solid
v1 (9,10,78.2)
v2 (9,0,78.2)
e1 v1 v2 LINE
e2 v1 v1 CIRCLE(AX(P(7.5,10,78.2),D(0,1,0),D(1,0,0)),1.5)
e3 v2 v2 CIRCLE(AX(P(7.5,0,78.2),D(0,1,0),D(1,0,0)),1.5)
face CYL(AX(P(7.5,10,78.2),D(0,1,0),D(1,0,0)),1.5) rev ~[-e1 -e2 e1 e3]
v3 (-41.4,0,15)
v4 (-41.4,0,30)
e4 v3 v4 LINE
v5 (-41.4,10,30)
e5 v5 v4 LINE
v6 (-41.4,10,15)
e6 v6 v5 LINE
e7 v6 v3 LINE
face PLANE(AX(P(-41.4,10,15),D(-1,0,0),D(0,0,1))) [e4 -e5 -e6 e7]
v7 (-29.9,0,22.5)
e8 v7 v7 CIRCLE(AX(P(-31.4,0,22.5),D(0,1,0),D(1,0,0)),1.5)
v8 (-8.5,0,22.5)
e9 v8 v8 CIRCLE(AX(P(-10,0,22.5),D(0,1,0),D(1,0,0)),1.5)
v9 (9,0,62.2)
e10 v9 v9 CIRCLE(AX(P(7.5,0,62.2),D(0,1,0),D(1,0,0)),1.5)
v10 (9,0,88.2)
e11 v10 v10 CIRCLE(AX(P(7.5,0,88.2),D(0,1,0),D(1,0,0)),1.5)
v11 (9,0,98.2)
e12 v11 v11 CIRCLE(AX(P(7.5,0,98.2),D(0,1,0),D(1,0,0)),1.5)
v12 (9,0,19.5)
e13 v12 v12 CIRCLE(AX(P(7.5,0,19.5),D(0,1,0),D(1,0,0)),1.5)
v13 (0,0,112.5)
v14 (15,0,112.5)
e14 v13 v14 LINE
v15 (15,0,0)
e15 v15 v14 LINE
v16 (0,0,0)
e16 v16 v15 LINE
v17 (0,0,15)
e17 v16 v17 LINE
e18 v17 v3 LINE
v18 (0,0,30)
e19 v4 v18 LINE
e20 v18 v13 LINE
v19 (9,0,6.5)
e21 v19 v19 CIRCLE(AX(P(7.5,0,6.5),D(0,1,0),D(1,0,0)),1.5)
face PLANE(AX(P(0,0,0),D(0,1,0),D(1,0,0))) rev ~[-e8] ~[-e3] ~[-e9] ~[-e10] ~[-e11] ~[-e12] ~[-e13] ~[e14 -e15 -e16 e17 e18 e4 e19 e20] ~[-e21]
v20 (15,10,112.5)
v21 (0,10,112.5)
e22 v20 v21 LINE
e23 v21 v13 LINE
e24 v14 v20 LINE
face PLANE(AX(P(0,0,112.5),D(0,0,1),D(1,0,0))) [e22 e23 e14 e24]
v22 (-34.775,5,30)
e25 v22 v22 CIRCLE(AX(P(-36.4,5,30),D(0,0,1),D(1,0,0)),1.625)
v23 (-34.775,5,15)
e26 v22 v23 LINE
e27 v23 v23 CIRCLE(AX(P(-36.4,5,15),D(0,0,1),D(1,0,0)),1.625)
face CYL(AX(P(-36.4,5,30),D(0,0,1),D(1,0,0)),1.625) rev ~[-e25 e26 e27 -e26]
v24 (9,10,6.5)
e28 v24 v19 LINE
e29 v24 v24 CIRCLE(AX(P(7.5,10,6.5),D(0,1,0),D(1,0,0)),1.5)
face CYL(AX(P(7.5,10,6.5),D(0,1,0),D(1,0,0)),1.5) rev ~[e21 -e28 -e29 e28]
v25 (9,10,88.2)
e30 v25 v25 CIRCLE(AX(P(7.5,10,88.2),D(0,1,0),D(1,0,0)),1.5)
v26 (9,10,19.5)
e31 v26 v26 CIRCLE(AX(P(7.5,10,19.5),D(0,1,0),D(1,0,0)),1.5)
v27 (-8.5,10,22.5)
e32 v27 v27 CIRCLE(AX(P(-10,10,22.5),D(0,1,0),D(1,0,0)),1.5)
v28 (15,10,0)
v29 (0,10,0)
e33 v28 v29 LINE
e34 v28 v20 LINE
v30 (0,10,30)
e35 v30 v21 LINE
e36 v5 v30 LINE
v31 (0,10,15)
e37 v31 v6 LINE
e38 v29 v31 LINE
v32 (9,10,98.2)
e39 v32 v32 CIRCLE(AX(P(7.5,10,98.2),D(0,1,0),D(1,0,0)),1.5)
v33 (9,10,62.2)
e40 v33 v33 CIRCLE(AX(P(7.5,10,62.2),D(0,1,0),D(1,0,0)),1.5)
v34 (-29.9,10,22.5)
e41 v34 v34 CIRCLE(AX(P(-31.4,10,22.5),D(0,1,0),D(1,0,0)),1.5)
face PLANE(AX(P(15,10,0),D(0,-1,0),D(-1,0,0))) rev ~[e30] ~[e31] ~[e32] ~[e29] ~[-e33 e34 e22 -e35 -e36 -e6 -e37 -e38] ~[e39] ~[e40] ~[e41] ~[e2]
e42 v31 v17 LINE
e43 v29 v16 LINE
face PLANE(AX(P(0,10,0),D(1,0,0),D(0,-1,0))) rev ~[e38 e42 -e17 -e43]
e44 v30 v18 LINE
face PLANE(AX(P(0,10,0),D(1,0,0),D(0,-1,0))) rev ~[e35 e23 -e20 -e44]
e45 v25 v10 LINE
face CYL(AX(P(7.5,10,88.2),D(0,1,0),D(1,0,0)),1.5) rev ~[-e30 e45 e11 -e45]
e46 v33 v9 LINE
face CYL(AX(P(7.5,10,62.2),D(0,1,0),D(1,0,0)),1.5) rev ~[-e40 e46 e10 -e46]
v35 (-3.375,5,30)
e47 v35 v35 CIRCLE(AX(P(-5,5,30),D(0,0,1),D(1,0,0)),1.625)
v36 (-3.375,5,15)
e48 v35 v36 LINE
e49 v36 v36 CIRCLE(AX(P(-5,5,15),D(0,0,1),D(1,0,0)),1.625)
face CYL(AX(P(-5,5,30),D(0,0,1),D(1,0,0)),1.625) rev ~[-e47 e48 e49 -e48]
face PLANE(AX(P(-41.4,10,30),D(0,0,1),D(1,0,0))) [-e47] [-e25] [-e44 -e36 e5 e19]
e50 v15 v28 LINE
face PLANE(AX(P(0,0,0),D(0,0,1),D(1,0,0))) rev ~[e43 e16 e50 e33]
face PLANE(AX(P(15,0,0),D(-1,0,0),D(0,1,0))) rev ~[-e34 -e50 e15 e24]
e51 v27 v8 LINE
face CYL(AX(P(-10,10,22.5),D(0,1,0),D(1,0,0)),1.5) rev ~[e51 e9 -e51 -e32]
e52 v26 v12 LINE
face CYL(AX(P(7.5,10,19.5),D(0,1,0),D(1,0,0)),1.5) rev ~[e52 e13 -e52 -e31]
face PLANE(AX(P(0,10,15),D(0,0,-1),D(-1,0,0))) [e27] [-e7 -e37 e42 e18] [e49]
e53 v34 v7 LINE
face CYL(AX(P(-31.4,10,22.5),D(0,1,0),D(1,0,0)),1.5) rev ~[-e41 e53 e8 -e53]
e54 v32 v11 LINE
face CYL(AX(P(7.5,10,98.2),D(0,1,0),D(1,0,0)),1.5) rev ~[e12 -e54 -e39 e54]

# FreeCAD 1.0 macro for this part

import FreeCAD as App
import Part
import Sketcher

V = App.Vector
Q = App.Units.Quantity


def add_polygon(sketch, points):
    """Adds a closed chain of lines whose ends are joined by coincident constraints."""
    first, n = sketch.GeometryCount, len(points)
    for a, b in zip(points, points[1:] + points[:1]):
        sketch.addGeometry(Part.LineSegment(App.Vector(*a, 0), App.Vector(*b, 0)), False)
    for i in range(n):
        sketch.addConstraint(Sketcher.Constraint("Coincident", first + i, 2, first + (i + 1) % n, 1))

doc = App.newDocument("Part")
body = doc.addObject("PartDesign::Body", "Body")

sketch1 = body.newObject("Sketcher::SketchObject", "Sketch")
sketch1.AttachmentSupport = (doc.getObject("XY_Plane"), [""])
sketch1.MapMode = "FlatFace"
add_polygon(sketch1, [(0, 10), (0, 0), (15, 0), (15, 10)])
sketch1.addConstraint([
    Sketcher.Constraint("Vertical", 0),
    Sketcher.Constraint("Horizontal", 1),
    Sketcher.Constraint("Vertical", 2),
    Sketcher.Constraint("Horizontal", 3),
    Sketcher.Constraint("Coincident", 0, 2, -1, 1),
    Sketcher.Constraint("DistanceX", 1, 1, 1, 2, Q("15 mm")),
    Sketcher.Constraint("DistanceY", 0, 2, 0, 1, Q("10 mm")),
])
pad1 = body.newObject("PartDesign::Pad", "Pad")
pad1.Profile = sketch1
pad1.Length = 112.5

sketch2 = body.newObject("Sketcher::SketchObject", "Sketch001")
sketch2.AttachmentSupport = (doc.getObject("XZ_Plane"), [""])
sketch2.MapMode = "FlatFace"
sketch2.AttachmentOffset = App.Placement(V(0, 0, -10), App.Rotation())
sketch2.addGeometry([
    Part.Circle(V(7.5, 6.5, 0), V(0, 0, 1), 1.5),
    Part.Circle(V(7.5, 98.2, 0), V(0, 0, 1), 1.5),
    Part.Circle(V(7.5, 19.5, 0), V(0, 0, 1), 1.5),
    Part.Circle(V(7.5, 88.2, 0), V(0, 0, 1), 1.5),
    Part.Circle(V(7.5, 78.2, 0), V(0, 0, 1), 1.5),
    Part.Circle(V(7.5, 62.2, 0), V(0, 0, 1), 1.5),
], False)
sketch2.addConstraint([
    Sketcher.Constraint("Equal", 0, 1),
    Sketcher.Constraint("Equal", 1, 2),
    Sketcher.Constraint("Equal", 2, 3),
    Sketcher.Constraint("Equal", 3, 4),
    Sketcher.Constraint("Equal", 4, 5),
    Sketcher.Constraint("Vertical", 0, 3, 1, 3),
    Sketcher.Constraint("Vertical", 1, 3, 2, 3),
    Sketcher.Constraint("Vertical", 2, 3, 3, 3),
    Sketcher.Constraint("Vertical", 3, 3, 4, 3),
    Sketcher.Constraint("Vertical", 4, 3, 5, 3),
    Sketcher.Constraint("Diameter", 0, Q("3 mm")),
    Sketcher.Constraint("DistanceY", 0, 3, 2, 3, Q("13 mm")),
    Sketcher.Constraint("DistanceY", 3, 3, 1, 3, Q("10 mm")),
    Sketcher.Constraint("DistanceY", 4, 3, 3, 3, Q("10 mm")),
    Sketcher.Constraint("DistanceY", 5, 3, 4, 3, Q("16 mm")),
    Sketcher.Constraint("DistanceX", -1, 1, 0, 3, Q("7.5 mm")),
    Sketcher.Constraint("DistanceY", -1, 1, 0, 3, Q("6.5 mm")),
    Sketcher.Constraint("DistanceY", -1, 1, 1, 3, Q("98.2 mm")),
])
pocket1 = body.newObject("PartDesign::Pocket", "Pocket")
pocket1.Profile = sketch2
pocket1.Length = 10
pocket1.Reversed = True

sketch3 = body.newObject("Sketcher::SketchObject", "Sketch002")
sketch3.AttachmentSupport = (doc.getObject("XZ_Plane"), [""])
sketch3.MapMode = "FlatFace"
sketch3.AttachmentOffset = App.Placement(V(0, 0, -10), App.Rotation())
add_polygon(sketch3, [(0, 30), (0, 15), (-41.4, 15), (-41.4, 30)])
sketch3.addGeometry(Part.Circle(V(-31.4, 22.5, 0), V(0, 0, 1), 1.5), False)
sketch3.addGeometry(Part.Circle(V(-10, 22.5, 0), V(0, 0, 1), 1.5), False)
sketch3.addConstraint([
    Sketcher.Constraint("Vertical", 0),
    Sketcher.Constraint("Horizontal", 1),
    Sketcher.Constraint("Vertical", 2),
    Sketcher.Constraint("Horizontal", 3),
    Sketcher.Constraint("Equal", 4, 5),
    Sketcher.Constraint("PointOnObject", 0, 2, -2),
    Sketcher.Constraint("Horizontal", 4, 3, 5, 3),
    Sketcher.Constraint("Diameter", 4, Q("3 mm")),
    Sketcher.Constraint("DistanceY", 0, 2, 0, 1, Q("15 mm")),
    Sketcher.Constraint("DistanceX", 1, 2, 1, 1, Q("41.4 mm")),
    Sketcher.Constraint("DistanceX", 5, 3, -1, 1, Q("10 mm")),
    Sketcher.Constraint("DistanceY", -1, 1, 0, 2, Q("15 mm")),
    Sketcher.Constraint("DistanceX", 1, 2, 4, 3, Q("10 mm")),
    Sketcher.Constraint("DistanceY", 0, 2, 5, 3, Q("7.5 mm")),
])
pad2 = body.newObject("PartDesign::Pad", "Pad001")
pad2.Profile = sketch3
pad2.Length = 10

sketch4 = body.newObject("Sketcher::SketchObject", "Sketch003")
sketch4.AttachmentSupport = (doc.getObject("XY_Plane"), [""])
sketch4.MapMode = "FlatFace"
sketch4.AttachmentOffset = App.Placement(V(0, 0, 30), App.Rotation())
sketch4.addGeometry([
    Part.Circle(V(-36.4, 5, 0), V(0, 0, 1), 1.625),
    Part.Circle(V(-5, 5, 0), V(0, 0, 1), 1.625),
], False)
sketch4.addConstraint([
    Sketcher.Constraint("Equal", 0, 1),
    Sketcher.Constraint("Horizontal", 0, 3, 1, 3),
    Sketcher.Constraint("Diameter", 0, Q("3.25 mm")),
    Sketcher.Constraint("DistanceY", -1, 1, 0, 3, Q("5 mm")),
    Sketcher.Constraint("DistanceX", 1, 3, -1, 1, Q("5 mm")),
    Sketcher.Constraint("DistanceX", 0, 3, -1, 1, Q("36.4 mm")),
])
pocket2 = body.newObject("PartDesign::Pocket", "Pocket001")
pocket2.Profile = sketch4
pocket2.Length = 15

doc.recompute()
